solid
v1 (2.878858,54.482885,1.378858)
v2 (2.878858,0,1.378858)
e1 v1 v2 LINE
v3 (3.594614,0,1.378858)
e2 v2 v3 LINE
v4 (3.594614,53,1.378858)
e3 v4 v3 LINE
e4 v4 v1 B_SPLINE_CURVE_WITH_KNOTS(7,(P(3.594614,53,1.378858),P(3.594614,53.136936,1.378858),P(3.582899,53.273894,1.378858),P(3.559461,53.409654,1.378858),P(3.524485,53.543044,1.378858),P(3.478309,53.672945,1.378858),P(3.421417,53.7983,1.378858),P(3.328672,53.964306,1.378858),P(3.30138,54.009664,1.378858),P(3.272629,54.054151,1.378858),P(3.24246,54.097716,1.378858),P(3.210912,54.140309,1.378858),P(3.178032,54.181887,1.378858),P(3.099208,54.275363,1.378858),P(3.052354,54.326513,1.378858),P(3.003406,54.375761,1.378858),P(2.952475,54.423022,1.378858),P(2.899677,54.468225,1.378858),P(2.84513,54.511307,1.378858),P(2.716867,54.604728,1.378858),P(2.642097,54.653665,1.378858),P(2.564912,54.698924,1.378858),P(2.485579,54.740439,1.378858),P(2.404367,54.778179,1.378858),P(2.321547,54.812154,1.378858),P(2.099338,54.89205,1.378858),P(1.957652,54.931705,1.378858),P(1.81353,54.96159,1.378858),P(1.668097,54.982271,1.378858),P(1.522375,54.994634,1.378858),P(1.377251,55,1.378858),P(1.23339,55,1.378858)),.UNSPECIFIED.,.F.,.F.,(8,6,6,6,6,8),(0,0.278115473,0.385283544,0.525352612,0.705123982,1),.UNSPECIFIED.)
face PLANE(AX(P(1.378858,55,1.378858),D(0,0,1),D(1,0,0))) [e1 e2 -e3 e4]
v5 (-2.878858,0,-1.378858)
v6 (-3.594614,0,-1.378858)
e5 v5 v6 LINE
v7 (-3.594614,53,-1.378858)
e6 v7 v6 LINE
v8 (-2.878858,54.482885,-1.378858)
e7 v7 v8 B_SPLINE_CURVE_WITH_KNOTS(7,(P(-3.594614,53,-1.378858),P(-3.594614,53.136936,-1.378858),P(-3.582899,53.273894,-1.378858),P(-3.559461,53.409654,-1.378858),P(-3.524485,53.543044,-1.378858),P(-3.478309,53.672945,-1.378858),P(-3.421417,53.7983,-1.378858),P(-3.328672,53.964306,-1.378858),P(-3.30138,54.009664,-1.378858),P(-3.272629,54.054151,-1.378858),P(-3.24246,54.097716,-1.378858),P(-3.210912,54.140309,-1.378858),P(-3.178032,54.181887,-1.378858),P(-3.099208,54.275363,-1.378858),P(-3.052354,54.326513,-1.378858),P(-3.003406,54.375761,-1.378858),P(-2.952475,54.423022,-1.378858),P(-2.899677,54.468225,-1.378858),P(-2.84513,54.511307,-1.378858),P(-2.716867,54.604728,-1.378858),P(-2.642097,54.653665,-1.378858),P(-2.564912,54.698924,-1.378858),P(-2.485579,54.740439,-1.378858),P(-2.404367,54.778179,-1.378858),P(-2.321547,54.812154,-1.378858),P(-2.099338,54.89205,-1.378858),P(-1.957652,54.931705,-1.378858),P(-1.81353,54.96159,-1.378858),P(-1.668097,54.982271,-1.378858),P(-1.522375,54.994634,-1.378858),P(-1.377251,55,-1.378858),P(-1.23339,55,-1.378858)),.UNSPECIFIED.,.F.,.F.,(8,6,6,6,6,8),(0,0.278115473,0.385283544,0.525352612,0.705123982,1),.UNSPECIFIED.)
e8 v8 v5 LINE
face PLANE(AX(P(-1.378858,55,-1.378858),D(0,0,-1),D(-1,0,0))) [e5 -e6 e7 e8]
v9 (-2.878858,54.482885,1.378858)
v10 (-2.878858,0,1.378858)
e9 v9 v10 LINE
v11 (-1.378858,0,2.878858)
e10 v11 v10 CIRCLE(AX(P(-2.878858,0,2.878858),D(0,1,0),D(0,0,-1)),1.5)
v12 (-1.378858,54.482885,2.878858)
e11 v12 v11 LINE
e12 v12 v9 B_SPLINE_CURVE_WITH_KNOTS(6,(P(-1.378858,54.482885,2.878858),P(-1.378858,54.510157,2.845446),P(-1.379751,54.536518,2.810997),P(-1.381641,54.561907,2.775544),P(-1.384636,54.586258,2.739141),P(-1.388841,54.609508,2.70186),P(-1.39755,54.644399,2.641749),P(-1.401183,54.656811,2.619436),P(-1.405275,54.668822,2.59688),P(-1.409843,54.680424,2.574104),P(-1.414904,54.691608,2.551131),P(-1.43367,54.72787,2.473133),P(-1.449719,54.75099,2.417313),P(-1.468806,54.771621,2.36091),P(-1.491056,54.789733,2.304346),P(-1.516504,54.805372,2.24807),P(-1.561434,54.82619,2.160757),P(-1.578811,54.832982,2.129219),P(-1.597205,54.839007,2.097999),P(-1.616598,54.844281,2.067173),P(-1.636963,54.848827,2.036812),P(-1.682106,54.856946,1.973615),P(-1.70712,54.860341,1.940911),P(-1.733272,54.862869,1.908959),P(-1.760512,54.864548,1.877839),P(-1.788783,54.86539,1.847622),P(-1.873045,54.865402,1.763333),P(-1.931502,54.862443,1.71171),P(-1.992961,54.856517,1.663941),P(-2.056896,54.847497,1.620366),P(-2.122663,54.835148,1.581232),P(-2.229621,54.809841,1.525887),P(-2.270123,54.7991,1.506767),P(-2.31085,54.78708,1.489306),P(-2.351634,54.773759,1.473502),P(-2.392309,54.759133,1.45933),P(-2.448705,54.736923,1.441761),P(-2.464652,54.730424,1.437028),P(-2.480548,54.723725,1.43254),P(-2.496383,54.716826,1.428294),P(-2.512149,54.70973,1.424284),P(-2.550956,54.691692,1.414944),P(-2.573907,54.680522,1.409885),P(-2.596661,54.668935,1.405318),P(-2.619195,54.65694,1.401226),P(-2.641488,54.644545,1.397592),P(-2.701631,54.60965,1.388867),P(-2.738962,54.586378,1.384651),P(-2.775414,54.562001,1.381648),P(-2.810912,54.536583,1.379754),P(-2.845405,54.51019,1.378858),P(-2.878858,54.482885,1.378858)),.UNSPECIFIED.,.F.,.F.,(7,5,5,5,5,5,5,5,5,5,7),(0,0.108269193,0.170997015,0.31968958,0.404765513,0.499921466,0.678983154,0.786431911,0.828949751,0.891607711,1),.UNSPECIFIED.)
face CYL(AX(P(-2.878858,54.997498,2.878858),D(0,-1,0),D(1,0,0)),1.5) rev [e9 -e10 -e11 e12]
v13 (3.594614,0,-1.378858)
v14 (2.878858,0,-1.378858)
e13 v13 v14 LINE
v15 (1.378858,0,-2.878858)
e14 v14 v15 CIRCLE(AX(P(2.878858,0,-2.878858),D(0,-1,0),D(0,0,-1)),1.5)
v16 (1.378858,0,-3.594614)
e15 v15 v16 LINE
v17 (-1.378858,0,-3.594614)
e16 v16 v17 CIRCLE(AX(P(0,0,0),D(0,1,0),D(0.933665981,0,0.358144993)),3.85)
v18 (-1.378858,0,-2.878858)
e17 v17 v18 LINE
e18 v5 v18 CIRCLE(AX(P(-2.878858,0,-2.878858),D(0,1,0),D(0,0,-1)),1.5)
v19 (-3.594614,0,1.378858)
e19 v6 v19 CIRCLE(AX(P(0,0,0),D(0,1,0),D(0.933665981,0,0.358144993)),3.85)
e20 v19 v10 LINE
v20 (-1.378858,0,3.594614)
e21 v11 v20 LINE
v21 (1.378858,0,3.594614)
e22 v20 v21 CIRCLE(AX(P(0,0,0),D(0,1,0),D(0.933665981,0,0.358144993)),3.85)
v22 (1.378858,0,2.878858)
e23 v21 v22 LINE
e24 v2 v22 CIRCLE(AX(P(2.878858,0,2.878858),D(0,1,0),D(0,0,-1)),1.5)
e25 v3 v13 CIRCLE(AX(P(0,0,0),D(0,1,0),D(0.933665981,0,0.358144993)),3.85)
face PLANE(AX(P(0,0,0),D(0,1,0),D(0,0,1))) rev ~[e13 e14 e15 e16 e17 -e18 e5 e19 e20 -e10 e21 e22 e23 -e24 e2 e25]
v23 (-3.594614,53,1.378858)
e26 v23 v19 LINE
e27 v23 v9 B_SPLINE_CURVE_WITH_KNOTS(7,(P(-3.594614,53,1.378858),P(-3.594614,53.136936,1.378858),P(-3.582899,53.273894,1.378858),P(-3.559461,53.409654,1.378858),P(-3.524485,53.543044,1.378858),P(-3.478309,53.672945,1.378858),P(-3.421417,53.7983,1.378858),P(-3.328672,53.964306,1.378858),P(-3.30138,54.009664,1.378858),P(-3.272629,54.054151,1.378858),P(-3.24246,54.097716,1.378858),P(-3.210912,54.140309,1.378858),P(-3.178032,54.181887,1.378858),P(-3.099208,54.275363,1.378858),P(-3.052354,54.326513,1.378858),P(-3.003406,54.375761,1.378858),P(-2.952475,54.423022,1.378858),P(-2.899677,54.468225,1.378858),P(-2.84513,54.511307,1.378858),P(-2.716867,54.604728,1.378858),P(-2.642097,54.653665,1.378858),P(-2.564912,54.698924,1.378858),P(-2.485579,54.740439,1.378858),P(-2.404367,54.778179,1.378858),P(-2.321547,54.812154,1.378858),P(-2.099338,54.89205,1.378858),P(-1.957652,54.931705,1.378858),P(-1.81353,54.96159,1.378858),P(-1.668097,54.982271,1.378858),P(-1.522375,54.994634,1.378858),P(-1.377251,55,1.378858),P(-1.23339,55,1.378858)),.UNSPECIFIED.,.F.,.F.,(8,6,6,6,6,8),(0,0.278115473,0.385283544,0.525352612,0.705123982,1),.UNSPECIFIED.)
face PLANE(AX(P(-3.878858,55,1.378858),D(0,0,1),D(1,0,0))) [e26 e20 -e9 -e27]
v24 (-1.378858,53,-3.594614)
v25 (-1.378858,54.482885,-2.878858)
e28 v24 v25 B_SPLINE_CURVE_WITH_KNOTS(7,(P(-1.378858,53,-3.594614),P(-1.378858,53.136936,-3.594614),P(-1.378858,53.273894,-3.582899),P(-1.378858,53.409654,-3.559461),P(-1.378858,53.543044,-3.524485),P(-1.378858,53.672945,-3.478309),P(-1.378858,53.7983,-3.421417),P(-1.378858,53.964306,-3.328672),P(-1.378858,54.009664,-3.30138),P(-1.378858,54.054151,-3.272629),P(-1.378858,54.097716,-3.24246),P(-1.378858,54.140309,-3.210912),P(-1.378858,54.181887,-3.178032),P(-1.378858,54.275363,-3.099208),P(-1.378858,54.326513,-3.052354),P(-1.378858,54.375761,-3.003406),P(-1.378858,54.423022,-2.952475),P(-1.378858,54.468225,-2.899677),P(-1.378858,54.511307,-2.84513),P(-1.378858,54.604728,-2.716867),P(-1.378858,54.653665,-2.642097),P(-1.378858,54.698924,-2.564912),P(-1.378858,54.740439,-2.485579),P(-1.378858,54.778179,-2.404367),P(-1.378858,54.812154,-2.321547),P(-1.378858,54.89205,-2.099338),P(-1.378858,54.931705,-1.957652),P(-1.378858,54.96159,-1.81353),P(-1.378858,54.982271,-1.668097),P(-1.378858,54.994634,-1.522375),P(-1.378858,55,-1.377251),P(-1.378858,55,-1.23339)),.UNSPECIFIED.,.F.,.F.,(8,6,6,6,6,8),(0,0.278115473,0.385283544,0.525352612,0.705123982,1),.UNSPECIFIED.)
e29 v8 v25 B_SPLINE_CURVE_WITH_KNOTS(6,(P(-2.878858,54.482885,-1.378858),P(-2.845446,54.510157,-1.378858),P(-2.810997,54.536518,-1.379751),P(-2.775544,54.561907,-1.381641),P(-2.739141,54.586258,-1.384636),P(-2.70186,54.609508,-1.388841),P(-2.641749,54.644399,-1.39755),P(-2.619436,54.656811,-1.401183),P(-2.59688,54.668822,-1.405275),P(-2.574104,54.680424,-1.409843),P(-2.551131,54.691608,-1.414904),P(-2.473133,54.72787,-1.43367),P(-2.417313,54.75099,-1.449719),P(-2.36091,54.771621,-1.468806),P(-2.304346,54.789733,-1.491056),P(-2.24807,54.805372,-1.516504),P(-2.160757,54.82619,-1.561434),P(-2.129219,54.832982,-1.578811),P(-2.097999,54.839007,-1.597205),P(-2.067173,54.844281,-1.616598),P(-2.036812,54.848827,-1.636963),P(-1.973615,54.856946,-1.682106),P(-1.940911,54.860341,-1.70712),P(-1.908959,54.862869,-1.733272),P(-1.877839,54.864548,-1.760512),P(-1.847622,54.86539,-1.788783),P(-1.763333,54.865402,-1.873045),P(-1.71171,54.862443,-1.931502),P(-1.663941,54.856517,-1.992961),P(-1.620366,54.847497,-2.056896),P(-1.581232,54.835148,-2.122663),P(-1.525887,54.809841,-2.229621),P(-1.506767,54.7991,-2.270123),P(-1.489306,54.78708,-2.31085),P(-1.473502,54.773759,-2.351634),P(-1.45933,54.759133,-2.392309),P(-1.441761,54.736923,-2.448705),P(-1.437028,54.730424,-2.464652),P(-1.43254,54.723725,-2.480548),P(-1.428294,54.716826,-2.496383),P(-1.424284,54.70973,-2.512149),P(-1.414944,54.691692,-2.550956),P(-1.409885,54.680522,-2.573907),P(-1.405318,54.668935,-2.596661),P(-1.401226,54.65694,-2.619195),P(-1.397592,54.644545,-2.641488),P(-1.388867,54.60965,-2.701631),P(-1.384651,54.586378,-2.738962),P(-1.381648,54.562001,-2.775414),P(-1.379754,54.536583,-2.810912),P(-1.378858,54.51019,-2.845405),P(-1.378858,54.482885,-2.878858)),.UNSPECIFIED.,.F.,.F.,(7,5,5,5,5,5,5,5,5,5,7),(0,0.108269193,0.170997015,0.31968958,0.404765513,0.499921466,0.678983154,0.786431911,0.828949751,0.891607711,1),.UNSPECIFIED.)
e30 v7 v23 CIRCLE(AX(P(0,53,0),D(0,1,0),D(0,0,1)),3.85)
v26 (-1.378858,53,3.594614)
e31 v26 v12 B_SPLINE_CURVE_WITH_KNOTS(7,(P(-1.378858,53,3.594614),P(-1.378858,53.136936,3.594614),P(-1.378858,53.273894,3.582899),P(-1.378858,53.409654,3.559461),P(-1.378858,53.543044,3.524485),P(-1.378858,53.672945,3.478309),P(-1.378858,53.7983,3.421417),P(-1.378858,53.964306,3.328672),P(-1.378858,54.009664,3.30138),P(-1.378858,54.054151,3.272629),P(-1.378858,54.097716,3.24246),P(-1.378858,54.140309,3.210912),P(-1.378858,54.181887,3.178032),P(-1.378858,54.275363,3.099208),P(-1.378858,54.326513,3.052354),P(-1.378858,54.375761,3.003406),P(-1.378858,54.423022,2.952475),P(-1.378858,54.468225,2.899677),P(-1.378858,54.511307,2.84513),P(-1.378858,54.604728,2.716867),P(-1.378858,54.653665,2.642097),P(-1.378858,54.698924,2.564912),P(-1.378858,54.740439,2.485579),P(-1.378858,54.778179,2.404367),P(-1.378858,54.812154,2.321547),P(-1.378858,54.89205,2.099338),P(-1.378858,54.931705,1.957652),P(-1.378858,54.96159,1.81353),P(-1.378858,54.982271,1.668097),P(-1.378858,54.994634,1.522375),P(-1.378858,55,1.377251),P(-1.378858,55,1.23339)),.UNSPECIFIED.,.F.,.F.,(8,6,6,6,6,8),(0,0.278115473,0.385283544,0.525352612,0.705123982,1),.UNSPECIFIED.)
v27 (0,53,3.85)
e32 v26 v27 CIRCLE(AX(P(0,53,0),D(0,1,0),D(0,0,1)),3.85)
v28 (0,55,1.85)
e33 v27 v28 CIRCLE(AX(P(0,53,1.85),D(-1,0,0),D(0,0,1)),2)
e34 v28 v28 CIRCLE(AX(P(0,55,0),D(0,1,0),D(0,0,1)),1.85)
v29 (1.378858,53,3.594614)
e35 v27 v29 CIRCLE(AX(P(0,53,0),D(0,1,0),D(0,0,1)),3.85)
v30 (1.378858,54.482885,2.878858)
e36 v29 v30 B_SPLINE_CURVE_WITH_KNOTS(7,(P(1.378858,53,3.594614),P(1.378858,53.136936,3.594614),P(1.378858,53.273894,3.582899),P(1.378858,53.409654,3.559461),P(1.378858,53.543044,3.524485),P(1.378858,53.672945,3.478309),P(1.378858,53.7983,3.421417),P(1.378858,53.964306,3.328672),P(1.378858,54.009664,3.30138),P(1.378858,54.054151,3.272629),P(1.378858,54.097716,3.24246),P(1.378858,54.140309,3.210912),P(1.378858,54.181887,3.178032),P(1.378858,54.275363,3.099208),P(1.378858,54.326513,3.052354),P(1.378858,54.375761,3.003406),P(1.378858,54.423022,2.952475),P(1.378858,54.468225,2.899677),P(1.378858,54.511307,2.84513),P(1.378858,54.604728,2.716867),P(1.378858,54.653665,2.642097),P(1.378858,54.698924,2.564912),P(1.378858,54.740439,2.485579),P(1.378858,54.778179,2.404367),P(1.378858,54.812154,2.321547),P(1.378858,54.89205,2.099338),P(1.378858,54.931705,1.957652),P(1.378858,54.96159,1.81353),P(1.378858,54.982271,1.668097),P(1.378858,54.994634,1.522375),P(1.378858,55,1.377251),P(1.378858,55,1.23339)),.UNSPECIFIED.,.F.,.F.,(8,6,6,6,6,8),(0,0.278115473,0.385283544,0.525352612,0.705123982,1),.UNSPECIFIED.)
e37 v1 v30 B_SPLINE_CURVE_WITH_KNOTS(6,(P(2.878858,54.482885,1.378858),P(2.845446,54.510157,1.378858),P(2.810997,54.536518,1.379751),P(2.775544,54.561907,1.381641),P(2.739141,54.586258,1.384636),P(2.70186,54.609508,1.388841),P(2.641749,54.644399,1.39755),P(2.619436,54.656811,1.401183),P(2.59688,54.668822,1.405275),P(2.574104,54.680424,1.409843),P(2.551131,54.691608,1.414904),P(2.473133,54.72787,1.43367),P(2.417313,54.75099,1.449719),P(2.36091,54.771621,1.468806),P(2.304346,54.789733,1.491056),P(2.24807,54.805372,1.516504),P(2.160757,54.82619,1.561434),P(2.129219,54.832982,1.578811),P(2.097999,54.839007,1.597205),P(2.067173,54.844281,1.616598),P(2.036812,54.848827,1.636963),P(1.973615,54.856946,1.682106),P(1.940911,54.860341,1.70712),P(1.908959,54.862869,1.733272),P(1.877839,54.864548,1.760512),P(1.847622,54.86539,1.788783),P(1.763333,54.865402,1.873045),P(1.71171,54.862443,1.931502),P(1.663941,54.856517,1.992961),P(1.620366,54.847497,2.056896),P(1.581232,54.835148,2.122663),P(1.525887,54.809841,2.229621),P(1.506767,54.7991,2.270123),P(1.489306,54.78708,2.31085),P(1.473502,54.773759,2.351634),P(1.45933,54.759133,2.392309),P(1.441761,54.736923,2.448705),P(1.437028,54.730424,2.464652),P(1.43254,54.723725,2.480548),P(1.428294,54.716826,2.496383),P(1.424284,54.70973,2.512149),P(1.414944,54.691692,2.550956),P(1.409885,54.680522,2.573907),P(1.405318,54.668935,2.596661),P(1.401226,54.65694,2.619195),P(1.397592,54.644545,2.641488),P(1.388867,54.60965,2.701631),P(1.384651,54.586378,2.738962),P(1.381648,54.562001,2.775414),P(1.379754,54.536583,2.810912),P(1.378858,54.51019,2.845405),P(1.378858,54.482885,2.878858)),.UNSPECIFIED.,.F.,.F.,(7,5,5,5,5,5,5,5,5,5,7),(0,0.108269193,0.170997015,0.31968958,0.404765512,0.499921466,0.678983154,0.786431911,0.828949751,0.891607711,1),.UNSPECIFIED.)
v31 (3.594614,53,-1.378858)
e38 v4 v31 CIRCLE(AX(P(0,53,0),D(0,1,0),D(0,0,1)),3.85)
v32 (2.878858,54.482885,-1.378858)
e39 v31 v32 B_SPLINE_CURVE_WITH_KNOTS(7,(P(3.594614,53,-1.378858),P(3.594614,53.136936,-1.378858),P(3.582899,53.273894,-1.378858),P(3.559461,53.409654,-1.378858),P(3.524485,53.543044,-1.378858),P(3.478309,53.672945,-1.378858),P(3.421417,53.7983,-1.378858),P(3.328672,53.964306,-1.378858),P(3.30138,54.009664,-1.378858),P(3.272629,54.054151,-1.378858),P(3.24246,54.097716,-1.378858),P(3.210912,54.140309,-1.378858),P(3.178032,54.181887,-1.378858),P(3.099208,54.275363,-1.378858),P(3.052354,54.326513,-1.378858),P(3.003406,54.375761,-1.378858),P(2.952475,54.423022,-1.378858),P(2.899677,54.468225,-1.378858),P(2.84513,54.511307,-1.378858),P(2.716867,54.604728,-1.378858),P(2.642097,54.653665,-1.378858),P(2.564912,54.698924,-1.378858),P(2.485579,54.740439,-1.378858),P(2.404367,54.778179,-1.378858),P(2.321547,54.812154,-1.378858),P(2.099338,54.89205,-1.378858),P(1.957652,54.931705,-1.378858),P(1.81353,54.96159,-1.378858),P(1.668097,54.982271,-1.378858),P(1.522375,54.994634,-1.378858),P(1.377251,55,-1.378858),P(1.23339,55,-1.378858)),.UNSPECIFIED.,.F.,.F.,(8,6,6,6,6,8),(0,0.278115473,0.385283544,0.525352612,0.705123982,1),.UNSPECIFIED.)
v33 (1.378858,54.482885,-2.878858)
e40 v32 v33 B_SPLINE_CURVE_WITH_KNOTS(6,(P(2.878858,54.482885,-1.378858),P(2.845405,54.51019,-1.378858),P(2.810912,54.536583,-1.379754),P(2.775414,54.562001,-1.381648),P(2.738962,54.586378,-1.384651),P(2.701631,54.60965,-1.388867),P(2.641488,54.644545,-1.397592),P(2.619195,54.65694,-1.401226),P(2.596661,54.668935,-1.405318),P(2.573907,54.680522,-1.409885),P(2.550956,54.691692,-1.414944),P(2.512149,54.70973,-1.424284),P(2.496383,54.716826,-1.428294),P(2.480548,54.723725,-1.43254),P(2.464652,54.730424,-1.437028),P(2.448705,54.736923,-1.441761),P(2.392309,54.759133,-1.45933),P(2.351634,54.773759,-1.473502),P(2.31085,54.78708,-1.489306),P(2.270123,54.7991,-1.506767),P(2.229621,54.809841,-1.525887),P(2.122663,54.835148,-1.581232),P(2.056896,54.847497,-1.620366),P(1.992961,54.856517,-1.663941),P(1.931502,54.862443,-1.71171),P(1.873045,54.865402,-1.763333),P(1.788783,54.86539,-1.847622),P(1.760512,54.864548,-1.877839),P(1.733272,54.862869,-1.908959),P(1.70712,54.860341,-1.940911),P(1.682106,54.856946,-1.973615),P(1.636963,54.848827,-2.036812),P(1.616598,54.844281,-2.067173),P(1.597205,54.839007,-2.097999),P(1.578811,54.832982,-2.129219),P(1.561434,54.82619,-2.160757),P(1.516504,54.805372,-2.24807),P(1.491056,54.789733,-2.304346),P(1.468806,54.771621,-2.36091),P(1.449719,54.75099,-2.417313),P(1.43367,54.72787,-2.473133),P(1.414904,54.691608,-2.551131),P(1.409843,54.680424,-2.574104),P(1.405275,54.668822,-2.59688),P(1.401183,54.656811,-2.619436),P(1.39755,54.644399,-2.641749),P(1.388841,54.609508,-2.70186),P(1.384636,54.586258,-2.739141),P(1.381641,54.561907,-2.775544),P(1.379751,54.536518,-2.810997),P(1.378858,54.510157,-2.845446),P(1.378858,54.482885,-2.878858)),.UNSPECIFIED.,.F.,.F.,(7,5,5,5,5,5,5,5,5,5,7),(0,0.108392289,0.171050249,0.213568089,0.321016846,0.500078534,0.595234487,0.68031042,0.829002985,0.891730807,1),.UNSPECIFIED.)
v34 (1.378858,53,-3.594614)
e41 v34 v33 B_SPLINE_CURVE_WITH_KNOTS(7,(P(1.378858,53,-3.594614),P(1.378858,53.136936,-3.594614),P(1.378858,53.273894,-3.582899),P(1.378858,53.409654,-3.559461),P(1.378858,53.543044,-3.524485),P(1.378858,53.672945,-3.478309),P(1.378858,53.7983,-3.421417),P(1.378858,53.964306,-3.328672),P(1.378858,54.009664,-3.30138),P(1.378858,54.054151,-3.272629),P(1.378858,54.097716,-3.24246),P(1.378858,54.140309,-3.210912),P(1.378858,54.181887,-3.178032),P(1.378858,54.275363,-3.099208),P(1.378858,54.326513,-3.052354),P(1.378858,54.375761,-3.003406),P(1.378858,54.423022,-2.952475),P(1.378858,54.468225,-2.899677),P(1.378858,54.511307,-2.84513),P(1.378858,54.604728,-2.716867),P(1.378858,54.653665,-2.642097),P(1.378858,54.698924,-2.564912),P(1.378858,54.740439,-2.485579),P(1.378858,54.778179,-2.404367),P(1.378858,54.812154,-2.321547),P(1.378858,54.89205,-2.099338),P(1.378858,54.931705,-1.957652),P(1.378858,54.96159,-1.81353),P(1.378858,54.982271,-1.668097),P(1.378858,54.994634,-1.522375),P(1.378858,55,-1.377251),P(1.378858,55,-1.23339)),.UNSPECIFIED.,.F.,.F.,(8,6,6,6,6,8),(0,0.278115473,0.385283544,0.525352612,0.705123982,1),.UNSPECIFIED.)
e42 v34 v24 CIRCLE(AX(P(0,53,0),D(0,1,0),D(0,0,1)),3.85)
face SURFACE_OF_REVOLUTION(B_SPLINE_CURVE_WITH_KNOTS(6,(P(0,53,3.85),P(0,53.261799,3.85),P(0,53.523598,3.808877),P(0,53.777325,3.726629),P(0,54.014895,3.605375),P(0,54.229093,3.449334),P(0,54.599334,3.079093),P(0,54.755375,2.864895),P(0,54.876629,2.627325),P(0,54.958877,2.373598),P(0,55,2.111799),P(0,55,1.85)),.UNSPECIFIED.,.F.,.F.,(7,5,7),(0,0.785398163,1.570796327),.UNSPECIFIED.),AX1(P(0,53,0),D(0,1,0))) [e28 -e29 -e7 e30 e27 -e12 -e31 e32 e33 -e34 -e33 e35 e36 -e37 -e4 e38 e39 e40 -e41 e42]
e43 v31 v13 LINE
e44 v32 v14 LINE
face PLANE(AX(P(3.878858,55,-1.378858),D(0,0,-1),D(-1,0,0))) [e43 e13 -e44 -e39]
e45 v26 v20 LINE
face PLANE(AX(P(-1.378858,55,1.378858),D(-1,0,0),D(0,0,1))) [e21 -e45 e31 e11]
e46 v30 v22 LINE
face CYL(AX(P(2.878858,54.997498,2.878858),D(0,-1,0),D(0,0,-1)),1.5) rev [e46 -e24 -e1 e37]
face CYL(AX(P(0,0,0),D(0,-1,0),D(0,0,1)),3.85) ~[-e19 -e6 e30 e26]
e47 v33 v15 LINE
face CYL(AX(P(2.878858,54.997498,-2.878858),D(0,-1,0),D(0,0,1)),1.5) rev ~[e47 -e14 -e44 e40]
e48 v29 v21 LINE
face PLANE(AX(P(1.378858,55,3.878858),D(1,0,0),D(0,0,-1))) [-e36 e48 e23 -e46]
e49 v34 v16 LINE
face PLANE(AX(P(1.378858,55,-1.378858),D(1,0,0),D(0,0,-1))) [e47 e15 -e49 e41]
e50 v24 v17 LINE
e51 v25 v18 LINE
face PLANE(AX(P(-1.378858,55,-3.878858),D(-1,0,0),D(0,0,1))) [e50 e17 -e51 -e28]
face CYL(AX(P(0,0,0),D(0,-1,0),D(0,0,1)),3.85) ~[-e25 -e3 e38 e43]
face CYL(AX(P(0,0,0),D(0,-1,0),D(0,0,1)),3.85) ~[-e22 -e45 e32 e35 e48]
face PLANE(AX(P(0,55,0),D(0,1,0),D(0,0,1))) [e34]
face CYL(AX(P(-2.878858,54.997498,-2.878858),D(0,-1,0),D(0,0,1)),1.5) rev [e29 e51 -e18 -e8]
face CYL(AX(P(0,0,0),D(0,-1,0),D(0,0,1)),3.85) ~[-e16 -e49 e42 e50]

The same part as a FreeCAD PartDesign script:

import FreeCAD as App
import Part
import Sketcher
from FreeCAD import Vector
Q = App.Units.Quantity


def edges_at(feature, points):
    """Names of the edges that pass closest to the given points."""
    edges = feature.Shape.Edges
    near = lambda p: min(range(len(edges)), key=lambda i: edges[i].distToShape(Part.Vertex(*p))[0])
    return sorted({f"Edge{near(p) + 1}" for p in points})

doc = App.newDocument("Part")
body = doc.addObject("PartDesign::Body", "Body")

sketch1 = body.newObject("Sketcher::SketchObject", "Sketch")
sketch1.AttachmentSupport = (doc.getObject("XZ_Plane"), [""])
sketch1.MapMode = "FlatFace"
sketch1.addGeometry(Part.Circle(Vector(0, 0, 0), Vector(0, 0, 1), 3.9), False)
sketch1.addConstraint([
    Sketcher.Constraint("Coincident", 0, 3, -1, 1),
    Sketcher.Constraint("Diameter", 0, Q("7.7 mm")),
])
pad1 = body.newObject("PartDesign::Pad", "Pad")
pad1.Profile = sketch1
pad1.Length = 55
pad1.Reversed = True
doc.recompute()

fillet = body.newObject("PartDesign::Fillet", "Fillet")
fillet.Base = (pad1, edges_at(pad1, [(0, 55, -3.85)]))
fillet.Radius = 2

sketch2 = body.newObject("Sketcher::SketchObject", "Sketch001")
sketch2.AttachmentSupport = (doc.getObject("XZ_Plane"), [""])
sketch2.MapMode = "FlatFace"
sketch2.AttachmentOffset = App.Placement(Vector(0, 0, -55), App.Rotation())
sketch2.addGeometry([
    Part.LineSegment(Vector(1.4, 1.4, 0), Vector(1.4, 3.9, 0)),
    Part.LineSegment(Vector(1.4, 3.9, 0), Vector(3.9, 3.9, 0)),
    Part.LineSegment(Vector(3.9, 3.9, 0), Vector(3.9, 1.4, 0)),
    Part.LineSegment(Vector(3.9, 1.4, 0), Vector(1.4, 1.4, 0)),
], False)
sketch2.addConstraint([
    Sketcher.Constraint("Coincident", 0, 2, 1, 1),
    Sketcher.Constraint("Coincident", 1, 2, 2, 1),
    Sketcher.Constraint("Coincident", 2, 2, 3, 1),
    Sketcher.Constraint("Coincident", 3, 2, 0, 1),
    Sketcher.Constraint("Vertical", 0),
    Sketcher.Constraint("Horizontal", 1),
    Sketcher.Constraint("Vertical", 2),
    Sketcher.Constraint("Horizontal", 3),
    Sketcher.Constraint("Equal", 3, 0),
    Sketcher.Constraint("DistanceX", 1, 1, 1, 2, Q("2.5 mm")),
    Sketcher.Constraint("DistanceX", -1, 1, 0, 2, Q("1.378858 mm")),
    Sketcher.Constraint("DistanceY", -1, 1, 0, 2, Q("3.878858 mm")),
])
pocket1 = body.newObject("PartDesign::Pocket", "Pocket")
pocket1.Profile = sketch2
pocket1.Type = "ThroughAll"
pocket1.Reversed = True
doc.recompute()

polarpattern = body.newObject("PartDesign::PolarPattern", "PolarPattern")
polarpattern.Originals = [pocket1]
polarpattern.Axis = (doc.getObject("Y_Axis"), [""])
polarpattern.Angle = 360
polarpattern.Occurrences = 4
body.Tip = polarpattern
doc.recompute()

fillet2 = body.newObject("PartDesign::Fillet", "Fillet001")
fillet2.Base = (polarpattern, edges_at(polarpattern, [
    (1.379, 27.499, -1.379),
    (-1.379, 27.499, -1.379),
    (-1.379, 27.499, 1.379),
    (1.379, 27.499, 1.379),
]))
fillet2.Radius = 1.5

doc.recompute()
